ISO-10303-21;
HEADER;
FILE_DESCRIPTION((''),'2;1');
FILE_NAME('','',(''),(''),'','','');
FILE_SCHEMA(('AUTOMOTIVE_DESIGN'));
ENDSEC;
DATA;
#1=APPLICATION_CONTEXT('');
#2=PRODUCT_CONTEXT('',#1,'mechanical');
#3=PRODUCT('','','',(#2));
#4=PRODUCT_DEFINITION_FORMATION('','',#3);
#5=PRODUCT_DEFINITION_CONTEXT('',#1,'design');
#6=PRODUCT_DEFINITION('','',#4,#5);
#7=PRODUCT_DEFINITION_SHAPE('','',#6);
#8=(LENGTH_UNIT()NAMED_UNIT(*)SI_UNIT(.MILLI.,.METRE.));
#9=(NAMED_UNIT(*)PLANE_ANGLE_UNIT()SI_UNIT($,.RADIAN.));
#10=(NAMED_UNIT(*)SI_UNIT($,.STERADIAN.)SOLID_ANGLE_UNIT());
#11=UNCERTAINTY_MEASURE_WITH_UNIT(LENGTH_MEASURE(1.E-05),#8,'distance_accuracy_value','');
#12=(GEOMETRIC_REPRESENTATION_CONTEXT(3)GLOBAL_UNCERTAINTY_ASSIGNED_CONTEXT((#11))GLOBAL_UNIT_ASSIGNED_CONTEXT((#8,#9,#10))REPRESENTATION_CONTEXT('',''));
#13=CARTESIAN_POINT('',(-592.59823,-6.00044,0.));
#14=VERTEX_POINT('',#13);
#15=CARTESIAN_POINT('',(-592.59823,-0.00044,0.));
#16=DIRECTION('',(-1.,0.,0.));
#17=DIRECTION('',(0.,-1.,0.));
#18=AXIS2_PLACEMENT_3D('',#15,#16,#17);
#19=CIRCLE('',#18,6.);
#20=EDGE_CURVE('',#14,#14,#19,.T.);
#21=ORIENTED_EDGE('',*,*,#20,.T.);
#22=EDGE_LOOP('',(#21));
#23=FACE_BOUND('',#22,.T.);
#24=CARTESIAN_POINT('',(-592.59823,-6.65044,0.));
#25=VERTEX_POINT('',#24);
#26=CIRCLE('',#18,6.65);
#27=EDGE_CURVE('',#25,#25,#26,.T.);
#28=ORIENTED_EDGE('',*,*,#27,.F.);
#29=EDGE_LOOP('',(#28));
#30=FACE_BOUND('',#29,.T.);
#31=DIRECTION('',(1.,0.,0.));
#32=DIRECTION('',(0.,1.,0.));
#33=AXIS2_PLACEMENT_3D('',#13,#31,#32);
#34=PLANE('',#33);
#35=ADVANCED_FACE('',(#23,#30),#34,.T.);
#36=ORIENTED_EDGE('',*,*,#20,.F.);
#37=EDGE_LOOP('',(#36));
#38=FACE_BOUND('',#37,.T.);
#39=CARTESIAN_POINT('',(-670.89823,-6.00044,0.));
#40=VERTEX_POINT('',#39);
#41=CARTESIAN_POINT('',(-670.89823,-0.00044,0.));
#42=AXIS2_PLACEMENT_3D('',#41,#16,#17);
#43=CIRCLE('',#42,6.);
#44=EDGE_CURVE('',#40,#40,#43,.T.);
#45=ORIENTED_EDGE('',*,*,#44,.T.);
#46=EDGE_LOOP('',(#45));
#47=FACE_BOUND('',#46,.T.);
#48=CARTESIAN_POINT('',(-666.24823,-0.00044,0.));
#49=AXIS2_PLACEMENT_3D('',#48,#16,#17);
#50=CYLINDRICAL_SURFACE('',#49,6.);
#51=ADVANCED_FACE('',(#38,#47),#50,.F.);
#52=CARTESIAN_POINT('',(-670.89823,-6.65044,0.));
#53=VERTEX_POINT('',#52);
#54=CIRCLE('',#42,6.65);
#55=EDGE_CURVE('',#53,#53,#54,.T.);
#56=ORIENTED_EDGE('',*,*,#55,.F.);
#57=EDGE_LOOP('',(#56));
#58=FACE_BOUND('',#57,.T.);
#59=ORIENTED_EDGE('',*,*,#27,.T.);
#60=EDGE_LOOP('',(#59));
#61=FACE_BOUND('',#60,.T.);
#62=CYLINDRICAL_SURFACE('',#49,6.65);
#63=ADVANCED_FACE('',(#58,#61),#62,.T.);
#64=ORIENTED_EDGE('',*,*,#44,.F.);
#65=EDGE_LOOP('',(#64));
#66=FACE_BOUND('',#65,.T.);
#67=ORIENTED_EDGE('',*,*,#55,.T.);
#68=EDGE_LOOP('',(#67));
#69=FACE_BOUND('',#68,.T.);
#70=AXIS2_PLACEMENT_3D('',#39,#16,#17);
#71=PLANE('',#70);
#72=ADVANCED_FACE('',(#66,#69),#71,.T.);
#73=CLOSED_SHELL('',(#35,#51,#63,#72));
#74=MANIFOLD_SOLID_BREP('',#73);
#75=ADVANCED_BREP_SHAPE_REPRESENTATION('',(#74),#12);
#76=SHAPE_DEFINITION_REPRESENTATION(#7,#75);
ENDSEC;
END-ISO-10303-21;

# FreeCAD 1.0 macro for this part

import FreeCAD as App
import Part
import Sketcher
Q = App.Units.Quantity


def add_polygon(sketch, points):
    """Adds a closed chain of lines whose ends are joined by coincident constraints."""
    first, n = sketch.GeometryCount, len(points)
    for a, b in zip(points, points[1:] + points[:1]):
        sketch.addGeometry(Part.LineSegment(App.Vector(*a, 0), App.Vector(*b, 0)), False)
    for i in range(n):
        sketch.addConstraint(Sketcher.Constraint("Coincident", first + i, 2, first + (i + 1) % n, 1))

doc = App.newDocument("Part")
body = doc.addObject("PartDesign::Body", "Body")

# Sketch on XY plane
sketch1 = doc.addObject("Sketcher::SketchObject", "Sketch")
body.addObject(sketch1)
sketch1.AttachmentSupport = (doc.XY_Plane, [""])
sketch1.MapMode = "FlatFace"
add_polygon(sketch1, [(-670.9, -6), (-670.9, -6.7), (-592.6, -6.7), (-592.6, -6)])  # lines 0-3
sketch1.addGeometry(Part.LineSegment(App.Vector(-670.9, 0, 0), App.Vector(-592.6, 0, 0)), True)  # axis
sketch1.addConstraint([
    Sketcher.Constraint("Vertical", 0),
    Sketcher.Constraint("Horizontal", 1),
    Sketcher.Constraint("Vertical", 2),
    Sketcher.Constraint("Horizontal", 3),
    Sketcher.Constraint("Horizontal", 4),
    Sketcher.Constraint("Vertical", 3, 2, 4, 1),
    Sketcher.Constraint("Vertical", 2, 2, 4, 2),
    Sketcher.Constraint("DistanceX", 1, 1, 1, 2, Q("78.3 mm")),
    Sketcher.Constraint("DistanceY", 3, 2, 4, 1, Q("6 mm")),
    Sketcher.Constraint("DistanceY", 0, 2, 0, 1, Q("0.65 mm")),
    Sketcher.Constraint("DistanceX", 0, 2, -1, 1, Q("670.89823 mm")),
    Sketcher.Constraint("DistanceY", 0, 2, -1, 1, Q("6.65044 mm")),
])
revolution = doc.addObject("PartDesign::Revolution", "Revolution")
body.addObject(revolution)
revolution.Profile = sketch1
revolution.ReferenceAxis = (sketch1, ["Axis0"])
revolution.Angle = 360

doc.recompute()
